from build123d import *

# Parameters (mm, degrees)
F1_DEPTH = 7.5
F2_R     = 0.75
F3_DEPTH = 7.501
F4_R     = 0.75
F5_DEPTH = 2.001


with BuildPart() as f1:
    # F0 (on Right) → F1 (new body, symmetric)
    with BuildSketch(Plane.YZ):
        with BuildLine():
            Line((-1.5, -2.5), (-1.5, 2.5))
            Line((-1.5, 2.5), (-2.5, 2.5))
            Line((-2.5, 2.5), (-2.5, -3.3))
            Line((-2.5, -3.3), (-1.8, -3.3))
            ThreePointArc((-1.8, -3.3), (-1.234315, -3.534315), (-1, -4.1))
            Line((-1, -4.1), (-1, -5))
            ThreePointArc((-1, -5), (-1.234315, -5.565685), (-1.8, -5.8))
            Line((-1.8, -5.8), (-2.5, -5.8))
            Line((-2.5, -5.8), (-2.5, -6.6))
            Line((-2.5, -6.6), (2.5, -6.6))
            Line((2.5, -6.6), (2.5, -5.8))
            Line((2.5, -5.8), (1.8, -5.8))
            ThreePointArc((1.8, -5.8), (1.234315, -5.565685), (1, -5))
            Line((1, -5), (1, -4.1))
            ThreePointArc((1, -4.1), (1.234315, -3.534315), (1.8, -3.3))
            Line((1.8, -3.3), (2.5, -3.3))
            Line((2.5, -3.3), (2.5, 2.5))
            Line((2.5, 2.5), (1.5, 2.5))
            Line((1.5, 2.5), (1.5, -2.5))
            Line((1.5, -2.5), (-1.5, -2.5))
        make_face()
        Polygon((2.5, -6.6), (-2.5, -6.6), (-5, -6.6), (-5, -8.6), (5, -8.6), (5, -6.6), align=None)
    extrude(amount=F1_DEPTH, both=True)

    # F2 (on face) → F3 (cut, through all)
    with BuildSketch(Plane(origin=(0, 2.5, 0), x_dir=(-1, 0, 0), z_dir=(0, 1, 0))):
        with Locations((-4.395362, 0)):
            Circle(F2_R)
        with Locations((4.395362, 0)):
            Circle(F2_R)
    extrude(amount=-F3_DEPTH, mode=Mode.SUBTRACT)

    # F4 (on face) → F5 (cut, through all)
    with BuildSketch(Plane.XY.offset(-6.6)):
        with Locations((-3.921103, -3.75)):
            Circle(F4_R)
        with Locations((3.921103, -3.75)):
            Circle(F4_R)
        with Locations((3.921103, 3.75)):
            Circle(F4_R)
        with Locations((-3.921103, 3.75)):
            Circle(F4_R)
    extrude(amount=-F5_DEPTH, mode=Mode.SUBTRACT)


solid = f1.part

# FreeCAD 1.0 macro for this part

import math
import FreeCAD as App
import Part
import Sketcher
Q = App.Units.Quantity

doc = App.newDocument("Part")
body = doc.addObject("PartDesign::Body", "Body")

# Sketch on YZ plane
sketch1 = body.newObject("Sketcher::SketchObject", "Sketch")
sketch1.AttachmentSupport = (doc.getObject("YZ_Plane"), [""])
sketch1.MapMode = "FlatFace"
sketch1.addGeometry([
    Part.LineSegment(App.Vector(-1.5, -2.5, 0), App.Vector(-1.5, 2.5, 0)),  # 0
    Part.LineSegment(App.Vector(-1.5, 2.5, 0), App.Vector(-2.5, 2.5, 0)),  # 1
    Part.LineSegment(App.Vector(-2.5, 2.5, 0), App.Vector(-2.5, -3.3, 0)),  # 2
    Part.LineSegment(App.Vector(-2.5, -3.3, 0), App.Vector(-1.8, -3.3, 0)),  # 3
    Part.ArcOfCircle(Part.Circle(App.Vector(-1.8, -4.1, 0), App.Vector(0, 0, 1), 0.8), math.radians(0), math.radians(90)),  # 4
    Part.LineSegment(App.Vector(-1, -4.1, 0), App.Vector(-1, -5, 0)),  # 5
    Part.ArcOfCircle(Part.Circle(App.Vector(-1.8, -5, 0), App.Vector(0, 0, 1), 0.8), math.radians(-90), math.radians(0)),  # 6
    Part.LineSegment(App.Vector(-1.8, -5.8, 0), App.Vector(-2.5, -5.8, 0)),  # 7
    Part.LineSegment(App.Vector(-2.5, -5.8, 0), App.Vector(-2.5, -6.6, 0)),  # 8
    Part.LineSegment(App.Vector(-2.5, -6.6, 0), App.Vector(-5, -6.6, 0)),  # 9
    Part.LineSegment(App.Vector(-5, -6.6, 0), App.Vector(-5, -8.6, 0)),  # 10
    Part.LineSegment(App.Vector(-5, -8.6, 0), App.Vector(5, -8.6, 0)),  # 11
    Part.LineSegment(App.Vector(5, -8.6, 0), App.Vector(5, -6.6, 0)),  # 12
    Part.LineSegment(App.Vector(5, -6.6, 0), App.Vector(2.5, -6.6, 0)),  # 13
    Part.LineSegment(App.Vector(2.5, -6.6, 0), App.Vector(2.5, -5.8, 0)),  # 14
    Part.LineSegment(App.Vector(2.5, -5.8, 0), App.Vector(1.8, -5.8, 0)),  # 15
    Part.ArcOfCircle(Part.Circle(App.Vector(1.8, -5, 0), App.Vector(0, 0, 1), 0.8), math.radians(-180), math.radians(-90)),  # 16
    Part.LineSegment(App.Vector(1, -5, 0), App.Vector(1, -4.1, 0)),  # 17
    Part.ArcOfCircle(Part.Circle(App.Vector(1.8, -4.1, 0), App.Vector(0, 0, 1), 0.8), math.radians(90), math.radians(180)),  # 18
    Part.LineSegment(App.Vector(1.8, -3.3, 0), App.Vector(2.5, -3.3, 0)),  # 19
    Part.LineSegment(App.Vector(2.5, -3.3, 0), App.Vector(2.5, 2.5, 0)),  # 20
    Part.LineSegment(App.Vector(2.5, 2.5, 0), App.Vector(1.5, 2.5, 0)),  # 21
    Part.LineSegment(App.Vector(1.5, 2.5, 0), App.Vector(1.5, -2.5, 0)),  # 22
    Part.LineSegment(App.Vector(1.5, -2.5, 0), App.Vector(-1.5, -2.5, 0)),  # 23
], False)
sketch1.addConstraint([
    Sketcher.Constraint("Coincident", 0, 2, 1, 1),
    Sketcher.Constraint("Coincident", 1, 2, 2, 1),
    Sketcher.Constraint("Coincident", 2, 2, 3, 1),
    Sketcher.Constraint("Tangent", 3, 2, 4, 2),
    Sketcher.Constraint("Tangent", 4, 1, 5, 1),
    Sketcher.Constraint("Tangent", 5, 2, 6, 2),
    Sketcher.Constraint("Tangent", 6, 1, 7, 1),
    Sketcher.Constraint("Coincident", 7, 2, 8, 1),
    Sketcher.Constraint("Coincident", 8, 2, 9, 1),
    Sketcher.Constraint("Coincident", 9, 2, 10, 1),
    Sketcher.Constraint("Coincident", 10, 2, 11, 1),
    Sketcher.Constraint("Coincident", 11, 2, 12, 1),
    Sketcher.Constraint("Coincident", 12, 2, 13, 1),
    Sketcher.Constraint("Coincident", 13, 2, 14, 1),
    Sketcher.Constraint("Coincident", 14, 2, 15, 1),
    Sketcher.Constraint("Tangent", 15, 2, 16, 2),
    Sketcher.Constraint("Tangent", 16, 1, 17, 1),
    Sketcher.Constraint("Tangent", 17, 2, 18, 2),
    Sketcher.Constraint("Tangent", 18, 1, 19, 1),
    Sketcher.Constraint("Coincident", 19, 2, 20, 1),
    Sketcher.Constraint("Coincident", 20, 2, 21, 1),
    Sketcher.Constraint("Coincident", 21, 2, 22, 1),
    Sketcher.Constraint("Coincident", 22, 2, 23, 1),
    Sketcher.Constraint("Coincident", 23, 2, 0, 1),
    Sketcher.Constraint("Vertical", 0),
    Sketcher.Constraint("Horizontal", 1),
    Sketcher.Constraint("Vertical", 2),
    Sketcher.Constraint("Horizontal", 3),
    Sketcher.Constraint("Vertical", 5),
    Sketcher.Constraint("Horizontal", 7),
    Sketcher.Constraint("Vertical", 8),
    Sketcher.Constraint("Horizontal", 9),
    Sketcher.Constraint("Vertical", 10),
    Sketcher.Constraint("Horizontal", 11),
    Sketcher.Constraint("Vertical", 12),
    Sketcher.Constraint("Horizontal", 13),
    Sketcher.Constraint("Vertical", 14),
    Sketcher.Constraint("Horizontal", 15),
    Sketcher.Constraint("Vertical", 17),
    Sketcher.Constraint("Horizontal", 19),
    Sketcher.Constraint("Vertical", 20),
    Sketcher.Constraint("Horizontal", 21),
    Sketcher.Constraint("Vertical", 22),
    Sketcher.Constraint("Horizontal", 23),
    Sketcher.Constraint("Equal", 4, 6),
    Sketcher.Constraint("Equal", 6, 16),
    Sketcher.Constraint("Equal", 16, 18),
    Sketcher.Constraint("Symmetric", 0, 2, 22, 2, -1, 1),
    Sketcher.Constraint("Symmetric", 6, 3, 16, 3, -2),
    Sketcher.Constraint("Symmetric", 9, 2, 12, 2, -2),
    Sketcher.Constraint("Symmetric", 2, 2, 19, 2, -2),
    Sketcher.Constraint("Horizontal", 1, 2, 20, 2),
    Sketcher.Constraint("Vertical", 2, 2, 7, 2),
    Sketcher.Constraint("Vertical", 14, 2, 19, 2),
    Sketcher.Constraint("Radius", 4, Q("0.800001 mm")),
    Sketcher.Constraint("DistanceX", 1, 2, 1, 1, Q("1 mm")),
    Sketcher.Constraint("DistanceX", 11, 1, 11, 2, Q("10 mm")),
    Sketcher.Constraint("DistanceX", 23, 2, 23, 1, Q("3 mm")),
    Sketcher.Constraint("DistanceY", 0, 1, 0, 2, Q("5 mm")),
    Sketcher.Constraint("DistanceY", 10, 2, 10, 1, Q("2 mm")),
    Sketcher.Constraint("DistanceX", 3, 1, 3, 2, Q("0.7 mm")),
    Sketcher.Constraint("DistanceY", 2, 2, 2, 1, Q("5.8 mm")),
    Sketcher.Constraint("DistanceY", 5, 2, 5, 1, Q("0.9 mm")),
    Sketcher.Constraint("DistanceY", 8, 2, 8, 1, Q("0.8 mm")),
])
pad1 = body.newObject("PartDesign::Pad", "Pad")
pad1.Profile = sketch1
pad1.Length = 15
pad1.Midplane = True

# Sketch on XZ plane
sketch2 = body.newObject("Sketcher::SketchObject", "Sketch001")
sketch2.AttachmentSupport = (doc.getObject("XZ_Plane"), [""])
sketch2.MapMode = "FlatFace"
sketch2.AttachmentOffset = App.Placement(App.Vector(0, 0, -2.5), App.Rotation())
sketch2.addGeometry([
    Part.Circle(App.Vector(4.4, 0, 0), App.Vector(0, 0, 1), 0.8),
    Part.Circle(App.Vector(-4.4, 0, 0), App.Vector(0, 0, 1), 0.8),
], False)
sketch2.addConstraint([
    Sketcher.Constraint("Equal", 0, 1),
    Sketcher.Constraint("Symmetric", 0, 3, 1, 3, -1, 1),
    Sketcher.Constraint("PointOnObject", 0, 3, -1),
    Sketcher.Constraint("Diameter", 0, Q("1.5 mm")),
    Sketcher.Constraint("DistanceX", -1, 1, 0, 3, Q("4.395362 mm")),
])
pocket1 = body.newObject("PartDesign::Pocket", "Pocket")
pocket1.Profile = sketch2
pocket1.Type = "ThroughAll"
pocket1.Reversed = True

# Sketch on XY plane
sketch3 = body.newObject("Sketcher::SketchObject", "Sketch002")
sketch3.AttachmentSupport = (doc.getObject("XY_Plane"), [""])
sketch3.MapMode = "FlatFace"
sketch3.AttachmentOffset = App.Placement(App.Vector(0, 0, -6.6), App.Rotation())
sketch3.addGeometry([
    Part.Circle(App.Vector(-3.9, -3.8, 0), App.Vector(0, 0, 1), 0.8),
    Part.Circle(App.Vector(3.9, -3.8, 0), App.Vector(0, 0, 1), 0.8),
    Part.Circle(App.Vector(3.9, 3.8, 0), App.Vector(0, 0, 1), 0.8),
    Part.Circle(App.Vector(-3.9, 3.8, 0), App.Vector(0, 0, 1), 0.8),
], False)
sketch3.addConstraint([
    Sketcher.Constraint("Equal", 0, 1),
    Sketcher.Constraint("Equal", 1, 2),
    Sketcher.Constraint("Equal", 2, 3),
    Sketcher.Constraint("Symmetric", 0, 3, 2, 3, -1, 1),
    Sketcher.Constraint("Symmetric", 1, 3, 3, 3, -1, 1),
    Sketcher.Constraint("Symmetric", 0, 3, 1, 3, -2),
    Sketcher.Constraint("Diameter", 0, Q("1.5 mm")),
    Sketcher.Constraint("DistanceY", 1, 3, 2, 3, Q("7.5 mm")),
    Sketcher.Constraint("DistanceX", 0, 3, -1, 1, Q("3.921103 mm")),
])
pocket2 = body.newObject("PartDesign::Pocket", "Pocket001")
pocket2.Profile = sketch3
pocket2.Type = "ThroughAll"

doc.recompute()
